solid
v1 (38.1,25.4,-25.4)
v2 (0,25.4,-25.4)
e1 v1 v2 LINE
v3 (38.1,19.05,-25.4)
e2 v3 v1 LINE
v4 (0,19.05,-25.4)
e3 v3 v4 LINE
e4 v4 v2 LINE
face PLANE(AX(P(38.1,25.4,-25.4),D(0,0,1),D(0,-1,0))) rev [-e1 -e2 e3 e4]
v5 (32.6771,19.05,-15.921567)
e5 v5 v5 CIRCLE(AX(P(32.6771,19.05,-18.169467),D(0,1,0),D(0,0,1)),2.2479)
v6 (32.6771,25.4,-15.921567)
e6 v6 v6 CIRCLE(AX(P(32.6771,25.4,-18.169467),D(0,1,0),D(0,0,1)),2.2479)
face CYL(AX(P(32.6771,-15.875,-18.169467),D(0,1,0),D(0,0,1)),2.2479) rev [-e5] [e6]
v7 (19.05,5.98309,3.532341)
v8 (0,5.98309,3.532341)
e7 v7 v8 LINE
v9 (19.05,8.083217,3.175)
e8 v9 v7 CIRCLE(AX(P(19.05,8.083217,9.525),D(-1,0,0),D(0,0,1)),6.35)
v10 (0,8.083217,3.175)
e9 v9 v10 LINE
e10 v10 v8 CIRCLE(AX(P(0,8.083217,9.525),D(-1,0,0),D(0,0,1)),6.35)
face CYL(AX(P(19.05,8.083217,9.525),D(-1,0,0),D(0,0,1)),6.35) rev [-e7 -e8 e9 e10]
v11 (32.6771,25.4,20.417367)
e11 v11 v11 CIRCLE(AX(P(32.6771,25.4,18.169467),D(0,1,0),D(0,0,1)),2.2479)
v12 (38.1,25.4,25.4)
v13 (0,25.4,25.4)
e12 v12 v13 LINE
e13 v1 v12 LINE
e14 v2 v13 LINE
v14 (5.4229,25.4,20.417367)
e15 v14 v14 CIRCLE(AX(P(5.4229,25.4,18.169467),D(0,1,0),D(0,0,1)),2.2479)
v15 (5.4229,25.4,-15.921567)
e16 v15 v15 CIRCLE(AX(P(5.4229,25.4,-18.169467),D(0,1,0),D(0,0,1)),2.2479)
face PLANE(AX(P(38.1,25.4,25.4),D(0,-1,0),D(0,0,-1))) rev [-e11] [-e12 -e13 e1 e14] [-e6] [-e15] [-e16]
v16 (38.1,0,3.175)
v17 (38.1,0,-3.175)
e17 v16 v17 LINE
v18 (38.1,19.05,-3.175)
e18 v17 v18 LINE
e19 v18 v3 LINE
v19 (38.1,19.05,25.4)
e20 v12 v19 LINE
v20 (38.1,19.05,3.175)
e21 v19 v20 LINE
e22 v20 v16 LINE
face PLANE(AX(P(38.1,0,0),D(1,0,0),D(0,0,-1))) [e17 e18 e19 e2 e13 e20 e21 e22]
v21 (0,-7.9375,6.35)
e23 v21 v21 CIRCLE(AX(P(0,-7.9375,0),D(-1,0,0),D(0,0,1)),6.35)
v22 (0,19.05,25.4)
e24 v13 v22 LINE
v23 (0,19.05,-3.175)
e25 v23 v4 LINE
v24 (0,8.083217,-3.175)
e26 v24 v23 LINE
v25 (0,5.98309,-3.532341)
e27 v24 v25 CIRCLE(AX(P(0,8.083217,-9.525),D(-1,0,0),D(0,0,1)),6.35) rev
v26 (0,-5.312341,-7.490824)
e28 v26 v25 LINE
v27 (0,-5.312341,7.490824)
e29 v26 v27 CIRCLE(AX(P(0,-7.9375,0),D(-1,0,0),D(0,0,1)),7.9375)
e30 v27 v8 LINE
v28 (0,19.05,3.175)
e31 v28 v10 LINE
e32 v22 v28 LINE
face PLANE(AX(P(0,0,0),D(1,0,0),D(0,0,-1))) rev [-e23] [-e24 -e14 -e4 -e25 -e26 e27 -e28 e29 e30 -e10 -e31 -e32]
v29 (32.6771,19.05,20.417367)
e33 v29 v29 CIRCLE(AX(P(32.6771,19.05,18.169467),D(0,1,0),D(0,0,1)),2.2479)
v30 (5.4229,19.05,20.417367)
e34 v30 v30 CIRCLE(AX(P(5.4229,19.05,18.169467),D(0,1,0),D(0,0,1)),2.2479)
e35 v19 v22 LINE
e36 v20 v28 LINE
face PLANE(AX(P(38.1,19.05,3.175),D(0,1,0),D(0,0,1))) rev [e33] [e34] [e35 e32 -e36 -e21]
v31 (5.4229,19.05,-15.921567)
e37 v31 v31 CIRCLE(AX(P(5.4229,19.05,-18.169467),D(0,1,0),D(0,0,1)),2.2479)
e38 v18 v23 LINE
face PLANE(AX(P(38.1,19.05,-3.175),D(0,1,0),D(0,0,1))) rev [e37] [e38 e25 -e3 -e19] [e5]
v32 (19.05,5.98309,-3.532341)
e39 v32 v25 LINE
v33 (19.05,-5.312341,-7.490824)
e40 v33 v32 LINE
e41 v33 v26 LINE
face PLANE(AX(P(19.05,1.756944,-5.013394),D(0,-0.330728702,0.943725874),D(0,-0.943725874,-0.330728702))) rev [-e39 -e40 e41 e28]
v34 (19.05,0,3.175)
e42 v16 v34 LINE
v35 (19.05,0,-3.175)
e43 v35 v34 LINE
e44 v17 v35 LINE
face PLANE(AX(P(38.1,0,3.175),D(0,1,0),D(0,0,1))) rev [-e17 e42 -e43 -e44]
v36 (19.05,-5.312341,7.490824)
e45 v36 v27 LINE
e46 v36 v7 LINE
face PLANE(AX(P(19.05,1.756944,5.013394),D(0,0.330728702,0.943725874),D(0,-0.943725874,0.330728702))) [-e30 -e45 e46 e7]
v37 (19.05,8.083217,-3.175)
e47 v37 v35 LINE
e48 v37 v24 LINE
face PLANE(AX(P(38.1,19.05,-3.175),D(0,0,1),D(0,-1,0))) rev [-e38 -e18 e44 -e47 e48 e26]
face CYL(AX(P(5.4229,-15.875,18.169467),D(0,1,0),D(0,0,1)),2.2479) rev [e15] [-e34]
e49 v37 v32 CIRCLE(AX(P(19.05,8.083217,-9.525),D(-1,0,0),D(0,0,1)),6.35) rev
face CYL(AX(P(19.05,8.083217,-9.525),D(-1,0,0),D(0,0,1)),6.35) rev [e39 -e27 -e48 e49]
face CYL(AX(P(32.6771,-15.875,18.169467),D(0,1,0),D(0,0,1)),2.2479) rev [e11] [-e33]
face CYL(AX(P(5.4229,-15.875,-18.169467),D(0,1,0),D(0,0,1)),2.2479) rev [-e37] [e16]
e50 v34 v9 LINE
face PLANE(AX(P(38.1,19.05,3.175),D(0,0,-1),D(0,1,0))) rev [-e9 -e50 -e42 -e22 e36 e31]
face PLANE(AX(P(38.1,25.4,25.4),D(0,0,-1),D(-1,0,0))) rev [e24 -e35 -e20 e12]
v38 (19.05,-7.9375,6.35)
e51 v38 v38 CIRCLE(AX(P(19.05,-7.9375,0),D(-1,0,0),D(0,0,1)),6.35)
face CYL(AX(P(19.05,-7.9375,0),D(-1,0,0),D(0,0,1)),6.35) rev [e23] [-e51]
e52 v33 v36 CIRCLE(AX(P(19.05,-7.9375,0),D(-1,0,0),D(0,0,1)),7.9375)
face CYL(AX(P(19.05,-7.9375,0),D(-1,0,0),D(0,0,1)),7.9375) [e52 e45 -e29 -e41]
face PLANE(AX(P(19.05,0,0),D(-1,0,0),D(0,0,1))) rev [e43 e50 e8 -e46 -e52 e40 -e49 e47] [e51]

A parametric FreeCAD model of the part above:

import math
import FreeCAD as App
import Part
import Sketcher
from FreeCAD import Vector
Q = App.Units.Quantity


def add_polygon(sketch, points):
    """Adds a closed chain of lines whose ends are joined by coincident constraints."""
    first, n = sketch.GeometryCount, len(points)
    for a, b in zip(points, points[1:] + points[:1]):
        sketch.addGeometry(Part.LineSegment(App.Vector(*a, 0), App.Vector(*b, 0)), False)
    for i in range(n):
        sketch.addConstraint(Sketcher.Constraint("Coincident", first + i, 2, first + (i + 1) % n, 1))

doc = App.newDocument("Part")
body = doc.addObject("PartDesign::Body", "Body")

# Sketch on YZ plane
sketch1 = body.newObject("Sketcher::SketchObject", "Sketch")
sketch1.AttachmentSupport = (doc.getObject("YZ_Plane"), [""])
sketch1.MapMode = "FlatFace"
add_polygon(sketch1, [(0, 3.175), (0, -3.175), (19.05, -3.175), (19.05, -25.4), (25.4, -25.4), (25.4, 25.4), (19.05, 25.4), (19.05, 3.175)])  # lines 0-7
sketch1.addConstraint(Sketcher.Constraint("Vertical", 0))
sketch1.addConstraint(Sketcher.Constraint("Horizontal", 1))
sketch1.addConstraint(Sketcher.Constraint("Vertical", 2))
sketch1.addConstraint(Sketcher.Constraint("Horizontal", 3))
sketch1.addConstraint(Sketcher.Constraint("Vertical", 4))
sketch1.addConstraint(Sketcher.Constraint("Horizontal", 5))
sketch1.addConstraint(Sketcher.Constraint("Vertical", 6))
sketch1.addConstraint(Sketcher.Constraint("Horizontal", 7))
sketch1.addConstraint(Sketcher.Constraint("Symmetric", 0, 2, 7, 2, -1, 1))
sketch1.addConstraint(Sketcher.Constraint("Symmetric", 2, 2, 5, 2, -1))
sketch1.addConstraint(Sketcher.Constraint("Equal", 5, 0))
sketch1.addConstraint(Sketcher.Constraint("DistanceY", 4, 1, 4, 2, Q("2 in")))
sketch1.addConstraint(Sketcher.Constraint("DistanceX", -1, 1, 3, 2, Q("1 in")))
sketch1.addConstraint(Sketcher.Constraint("DistanceX", 1, 1, 1, 2, Q("0.75 in")))
pad1 = body.newObject("PartDesign::Pad", "Pad")
pad1.Profile = sketch1
pad1.Length = Q("1.5 in")

# Sketch on YZ plane
sketch2 = body.newObject("Sketcher::SketchObject", "Sketch001")
sketch2.AttachmentSupport = (doc.getObject("YZ_Plane"), [""])
sketch2.MapMode = "FlatFace"
sketch2.addGeometry(Part.ArcOfCircle(Part.Circle(Vector(-7.9375, 0, 0), Vector(0, 0, 1), 7.9375), math.radians(70.686989), math.radians(289.313011)), False)
sketch2.addGeometry(Part.LineSegment(Vector(-5.312341, 7.490824, 0), Vector(5.98309, 3.532341, 0)), False)
sketch2.addGeometry(Part.ArcOfCircle(Part.Circle(Vector(8.083217, 9.525, 0), Vector(0, 0, 1), 6.35), math.radians(-109.313011), math.radians(-90)), False)
sketch2.addGeometry(Part.LineSegment(Vector(8.083217, 3.175, 0), Vector(0, 3.175, 0)), False)
sketch2.addGeometry(Part.LineSegment(Vector(0, 3.175, 0), Vector(0, -3.175, 0)), False)
sketch2.addGeometry(Part.LineSegment(Vector(0, -3.175, 0), Vector(8.083217, -3.175, 0)), False)
sketch2.addGeometry(Part.ArcOfCircle(Part.Circle(Vector(8.083217, -9.525, 0), Vector(0, 0, 1), 6.35), math.radians(90), math.radians(109.313011)), False)
sketch2.addGeometry(Part.LineSegment(Vector(5.98309, -3.532341, 0), Vector(-5.312341, -7.490824, 0)), False)
sketch2.addGeometry(Part.Circle(Vector(-7.9375, 0, 0), Vector(0, 0, 1), 6.35), False)
sketch2.addConstraint(Sketcher.Constraint("Tangent", 0, 1, 1, 1))
sketch2.addConstraint(Sketcher.Constraint("Tangent", 1, 2, 2, 1))
sketch2.addConstraint(Sketcher.Constraint("Tangent", 2, 2, 3, 1))
sketch2.addConstraint(Sketcher.Constraint("Coincident", 3, 2, 4, 1))
sketch2.addConstraint(Sketcher.Constraint("Coincident", 4, 2, 5, 1))
sketch2.addConstraint(Sketcher.Constraint("Tangent", 5, 2, 6, 1))
sketch2.addConstraint(Sketcher.Constraint("Tangent", 6, 2, 7, 1))
sketch2.addConstraint(Sketcher.Constraint("Tangent", 7, 2, 0, 2))
sketch2.addConstraint(Sketcher.Constraint("Horizontal", 3))
sketch2.addConstraint(Sketcher.Constraint("Vertical", 4))
sketch2.addConstraint(Sketcher.Constraint("Horizontal", 5))
sketch2.addConstraint(Sketcher.Constraint("Coincident", 8, 3, 0, 3))
sketch2.addConstraint(Sketcher.Constraint("Equal", 2, 6))
sketch2.addConstraint(Sketcher.Constraint("Equal", 6, 8))
sketch2.addConstraint(Sketcher.Constraint("Symmetric", 3, 2, 4, 2, -1, 1))
sketch2.addConstraint(Sketcher.Constraint("Symmetric", 1, 2, 6, 2, -1))
sketch2.addConstraint(Sketcher.Constraint("Diameter", 8, Q("0.5 in")))
sketch2.addConstraint(Sketcher.Constraint("Radius", 0, Q("0.3125 in")))
sketch2.addConstraint(Sketcher.Constraint("DistanceY", 4, 2, 4, 1, Q("0.25 in")))
sketch2.addConstraint(Sketcher.Constraint("DistanceX", 0, 3, -1, 1, Q("0.3125 in")))
sketch2.addConstraint(Sketcher.Constraint("DistanceX", 3, 2, 3, 1, 8.083217))
pad2 = body.newObject("PartDesign::Pad", "Pad001")
pad2.Profile = sketch2
pad2.Length = Q("0.75 in")

# Sketch on XZ plane
sketch3 = body.newObject("Sketcher::SketchObject", "Sketch002")
sketch3.AttachmentSupport = (doc.getObject("XZ_Plane"), [""])
sketch3.MapMode = "FlatFace"
sketch3.AttachmentOffset = App.Placement(Vector(0, 0, -1 * 25.4), App.Rotation())
sketch3.addGeometry(Part.Circle(Vector(5.4229, -18.169467, 0), Vector(0, 0, 1), 2.2479), False)
sketch3.addGeometry(Part.Circle(Vector(32.6771, -18.169467, 0), Vector(0, 0, 1), 2.2479), False)
sketch3.addGeometry(Part.Circle(Vector(32.6771, 18.169467, 0), Vector(0, 0, 1), 2.2479), False)
sketch3.addGeometry(Part.Circle(Vector(5.4229, 18.169467, 0), Vector(0, 0, 1), 2.2479), False)
sketch3.addConstraint(Sketcher.Constraint("Equal", 0, 1))
sketch3.addConstraint(Sketcher.Constraint("Equal", 1, 2))
sketch3.addConstraint(Sketcher.Constraint("Equal", 2, 3))
sketch3.addConstraint(Sketcher.Constraint("Symmetric", 1, 3, 2, 3, -1))
sketch3.addConstraint(Sketcher.Constraint("Symmetric", 0, 3, 3, 3, -1))
sketch3.addConstraint(Sketcher.Constraint("Horizontal", 0, 3, 1, 3))
sketch3.addConstraint(Sketcher.Constraint("Diameter", 0, Q("0.177 in")))
sketch3.addConstraint(Sketcher.Constraint("DistanceX", 0, 3, 1, 3, Q("1.073 in")))
sketch3.addConstraint(Sketcher.Constraint("DistanceX", -1, 1, 0, 3, Q("0.2135 in")))
sketch3.addConstraint(Sketcher.Constraint("DistanceY", 0, 3, -1, 1, 18.169467))
pocket1 = body.newObject("PartDesign::Pocket", "Pocket")
pocket1.Profile = sketch3
pocket1.Type = "ThroughAll"
pocket1.Reversed = True

doc.recompute()
